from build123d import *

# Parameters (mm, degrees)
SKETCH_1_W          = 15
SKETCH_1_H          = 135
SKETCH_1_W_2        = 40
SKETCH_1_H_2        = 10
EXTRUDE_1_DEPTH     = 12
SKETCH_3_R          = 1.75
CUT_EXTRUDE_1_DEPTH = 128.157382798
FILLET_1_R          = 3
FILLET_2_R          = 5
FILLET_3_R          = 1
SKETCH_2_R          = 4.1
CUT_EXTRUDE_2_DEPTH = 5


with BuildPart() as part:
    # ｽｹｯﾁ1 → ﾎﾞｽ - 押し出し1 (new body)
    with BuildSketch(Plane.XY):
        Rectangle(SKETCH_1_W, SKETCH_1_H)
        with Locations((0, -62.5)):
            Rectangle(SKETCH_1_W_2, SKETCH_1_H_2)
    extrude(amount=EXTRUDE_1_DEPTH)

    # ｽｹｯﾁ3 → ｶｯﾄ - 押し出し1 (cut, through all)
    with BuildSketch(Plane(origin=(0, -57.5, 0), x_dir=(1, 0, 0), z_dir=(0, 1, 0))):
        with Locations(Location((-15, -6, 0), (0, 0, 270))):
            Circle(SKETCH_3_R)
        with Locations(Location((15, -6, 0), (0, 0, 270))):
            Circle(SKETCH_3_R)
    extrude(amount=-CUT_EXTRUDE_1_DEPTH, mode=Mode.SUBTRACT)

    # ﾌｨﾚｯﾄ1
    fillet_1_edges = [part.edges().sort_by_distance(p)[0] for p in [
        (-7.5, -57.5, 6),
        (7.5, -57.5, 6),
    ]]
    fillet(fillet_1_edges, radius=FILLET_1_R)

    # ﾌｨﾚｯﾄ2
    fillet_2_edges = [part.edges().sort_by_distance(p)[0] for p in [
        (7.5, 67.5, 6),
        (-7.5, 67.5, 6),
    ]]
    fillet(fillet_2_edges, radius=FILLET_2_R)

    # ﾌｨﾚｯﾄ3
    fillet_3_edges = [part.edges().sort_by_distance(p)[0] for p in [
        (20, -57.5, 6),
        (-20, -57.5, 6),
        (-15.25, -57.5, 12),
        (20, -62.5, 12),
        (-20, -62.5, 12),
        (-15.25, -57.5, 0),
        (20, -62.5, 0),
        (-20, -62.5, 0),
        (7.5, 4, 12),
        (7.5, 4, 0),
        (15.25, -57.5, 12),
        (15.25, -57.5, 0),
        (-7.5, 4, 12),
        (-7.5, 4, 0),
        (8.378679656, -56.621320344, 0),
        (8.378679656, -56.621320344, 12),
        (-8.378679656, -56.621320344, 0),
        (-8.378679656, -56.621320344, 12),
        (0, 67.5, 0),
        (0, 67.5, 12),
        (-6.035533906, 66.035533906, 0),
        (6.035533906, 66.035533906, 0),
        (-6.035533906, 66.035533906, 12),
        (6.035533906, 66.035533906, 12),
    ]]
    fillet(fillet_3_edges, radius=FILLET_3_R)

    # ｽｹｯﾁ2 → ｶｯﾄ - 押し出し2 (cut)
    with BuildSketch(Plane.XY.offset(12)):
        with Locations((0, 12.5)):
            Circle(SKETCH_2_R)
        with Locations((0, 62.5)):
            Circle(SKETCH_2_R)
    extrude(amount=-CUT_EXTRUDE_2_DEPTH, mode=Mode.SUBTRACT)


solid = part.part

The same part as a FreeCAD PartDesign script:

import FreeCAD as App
import Part
import Sketcher
from FreeCAD import Vector
Q = App.Units.Quantity


def edges_at(feature, points):
    """Names of the edges that pass closest to the given points."""
    edges = feature.Shape.Edges
    near = lambda p: min(range(len(edges)), key=lambda i: edges[i].distToShape(Part.Vertex(*p))[0])
    return sorted({f"Edge{near(p) + 1}" for p in points})


def add_polygon(sketch, points):
    """Adds a closed chain of lines whose ends are joined by coincident constraints."""
    first, n = sketch.GeometryCount, len(points)
    for a, b in zip(points, points[1:] + points[:1]):
        sketch.addGeometry(Part.LineSegment(App.Vector(*a, 0), App.Vector(*b, 0)), False)
    for i in range(n):
        sketch.addConstraint(Sketcher.Constraint("Coincident", first + i, 2, first + (i + 1) % n, 1))

doc = App.newDocument("Part")
body = doc.addObject("PartDesign::Body", "Body")

sketch1 = body.newObject("Sketcher::SketchObject", "Sketch")
sketch1.AttachmentSupport = (doc.getObject("XY_Plane"), [""])
sketch1.MapMode = "FlatFace"
add_polygon(sketch1, [(20, -67.5), (20, -57.5), (7.5, -57.5), (7.5, 67.5), (-7.5, 67.5), (-7.5, -57.5), (-20, -57.5), (-20, -67.5)])
sketch1.addConstraint([
    Sketcher.Constraint("Vertical", 0),
    Sketcher.Constraint("Horizontal", 1),
    Sketcher.Constraint("Vertical", 2),
    Sketcher.Constraint("Horizontal", 3),
    Sketcher.Constraint("Vertical", 4),
    Sketcher.Constraint("Horizontal", 5),
    Sketcher.Constraint("Vertical", 6),
    Sketcher.Constraint("Horizontal", 7),
    Sketcher.Constraint("Symmetric", 1, 2, 4, 2, -2),
    Sketcher.Constraint("Equal", 1, 5),
    Sketcher.Constraint("DistanceX", 3, 2, 3, 1, Q("15 mm")),
    Sketcher.Constraint("DistanceX", 7, 1, 7, 2, Q("40 mm")),
    Sketcher.Constraint("DistanceY", 0, 1, 0, 2, Q("10 mm")),
    Sketcher.Constraint("DistanceY", 2, 1, 2, 2, Q("125 mm")),
    Sketcher.Constraint("DistanceY", 0, 2, -1, 1, Q("57.5 mm")),
])
pad1 = body.newObject("PartDesign::Pad", "Pad")
pad1.Profile = sketch1
pad1.Length = 12

sketch2 = body.newObject("Sketcher::SketchObject", "Sketch001")
sketch2.AttachmentSupport = (doc.getObject("XZ_Plane"), [""])
sketch2.MapMode = "FlatFace"
sketch2.AttachmentOffset = App.Placement(Vector(0, 0, 57.5), App.Rotation())
sketch2.addGeometry([
    Part.Circle(Vector(-15, 6, 0), Vector(0, 0, 1), 1.75),
    Part.Circle(Vector(15, 6, 0), Vector(0, 0, 1), 1.75),
], False)
sketch2.addConstraint([
    Sketcher.Constraint("Equal", 0, 1),
    Sketcher.Constraint("Symmetric", 0, 3, 1, 3, -2),
    Sketcher.Constraint("Diameter", 0, Q("3.5 mm")),
    Sketcher.Constraint("DistanceX", 0, 3, -1, 1, Q("15 mm")),
    Sketcher.Constraint("DistanceY", -1, 1, 0, 3, Q("6 mm")),
])
pocket1 = body.newObject("PartDesign::Pocket", "Pocket")
pocket1.Profile = sketch2
pocket1.Type = "ThroughAll"
pocket1.Reversed = True
doc.recompute()

fillet = body.newObject("PartDesign::Fillet", "Fillet")
fillet.Base = (pocket1, edges_at(pocket1, [(-7.5, -57.5, 6), (7.5, -57.5, 6)]))
fillet.Radius = 3
doc.recompute()

fillet2 = body.newObject("PartDesign::Fillet", "Fillet001")
fillet2.Base = (fillet, edges_at(fillet, [(7.5, 67.5, 6), (-7.5, 67.5, 6)]))
fillet2.Radius = 5
doc.recompute()

fillet3 = body.newObject("PartDesign::Fillet", "Fillet002")
fillet3.Base = (fillet2, edges_at(fillet2, [
    (20, -57.5, 6),
    (-20, -57.5, 6),
    (-15.25, -57.5, 12),
    (20, -62.5, 12),
    (-20, -62.5, 12),
    (-15.25, -57.5, 0),
    (20, -62.5, 0),
    (-20, -62.5, 0),
    (7.5, 4, 12),
    (7.5, 4, 0),
    (15.25, -57.5, 12),
    (15.25, -57.5, 0),
    (-7.5, 4, 12),
    (-7.5, 4, 0),
    (8.379, -56.621, 0),
    (8.379, -56.621, 12),
    (-8.379, -56.621, 0),
    (-8.379, -56.621, 12),
    (0, 67.5, 0),
    (0, 67.5, 12),
    (-6.036, 66.036, 0),
    (6.036, 66.036, 0),
    (-6.036, 66.036, 12),
    (6.036, 66.036, 12),
]))
fillet3.Radius = 1

sketch3 = body.newObject("Sketcher::SketchObject", "Sketch002")
sketch3.AttachmentSupport = (doc.getObject("XY_Plane"), [""])
sketch3.MapMode = "FlatFace"
sketch3.AttachmentOffset = App.Placement(Vector(0, 0, 12), App.Rotation())
sketch3.addGeometry([
    Part.Circle(Vector(0, 12.5, 0), Vector(0, 0, 1), 4.1),
    Part.Circle(Vector(0, 62.5, 0), Vector(0, 0, 1), 4.1),
], False)
sketch3.addConstraint([
    Sketcher.Constraint("Equal", 0, 1),
    Sketcher.Constraint("PointOnObject", 0, 3, -2),
    Sketcher.Constraint("PointOnObject", 1, 3, -2),
    Sketcher.Constraint("Diameter", 0, Q("8.2 mm")),
    Sketcher.Constraint("DistanceY", 0, 3, 1, 3, Q("50 mm")),
    Sketcher.Constraint("DistanceY", -1, 1, 0, 3, Q("12.5 mm")),
])
pocket2 = body.newObject("PartDesign::Pocket", "Pocket001")
pocket2.Profile = sketch3
pocket2.Length = 5

doc.recompute()
